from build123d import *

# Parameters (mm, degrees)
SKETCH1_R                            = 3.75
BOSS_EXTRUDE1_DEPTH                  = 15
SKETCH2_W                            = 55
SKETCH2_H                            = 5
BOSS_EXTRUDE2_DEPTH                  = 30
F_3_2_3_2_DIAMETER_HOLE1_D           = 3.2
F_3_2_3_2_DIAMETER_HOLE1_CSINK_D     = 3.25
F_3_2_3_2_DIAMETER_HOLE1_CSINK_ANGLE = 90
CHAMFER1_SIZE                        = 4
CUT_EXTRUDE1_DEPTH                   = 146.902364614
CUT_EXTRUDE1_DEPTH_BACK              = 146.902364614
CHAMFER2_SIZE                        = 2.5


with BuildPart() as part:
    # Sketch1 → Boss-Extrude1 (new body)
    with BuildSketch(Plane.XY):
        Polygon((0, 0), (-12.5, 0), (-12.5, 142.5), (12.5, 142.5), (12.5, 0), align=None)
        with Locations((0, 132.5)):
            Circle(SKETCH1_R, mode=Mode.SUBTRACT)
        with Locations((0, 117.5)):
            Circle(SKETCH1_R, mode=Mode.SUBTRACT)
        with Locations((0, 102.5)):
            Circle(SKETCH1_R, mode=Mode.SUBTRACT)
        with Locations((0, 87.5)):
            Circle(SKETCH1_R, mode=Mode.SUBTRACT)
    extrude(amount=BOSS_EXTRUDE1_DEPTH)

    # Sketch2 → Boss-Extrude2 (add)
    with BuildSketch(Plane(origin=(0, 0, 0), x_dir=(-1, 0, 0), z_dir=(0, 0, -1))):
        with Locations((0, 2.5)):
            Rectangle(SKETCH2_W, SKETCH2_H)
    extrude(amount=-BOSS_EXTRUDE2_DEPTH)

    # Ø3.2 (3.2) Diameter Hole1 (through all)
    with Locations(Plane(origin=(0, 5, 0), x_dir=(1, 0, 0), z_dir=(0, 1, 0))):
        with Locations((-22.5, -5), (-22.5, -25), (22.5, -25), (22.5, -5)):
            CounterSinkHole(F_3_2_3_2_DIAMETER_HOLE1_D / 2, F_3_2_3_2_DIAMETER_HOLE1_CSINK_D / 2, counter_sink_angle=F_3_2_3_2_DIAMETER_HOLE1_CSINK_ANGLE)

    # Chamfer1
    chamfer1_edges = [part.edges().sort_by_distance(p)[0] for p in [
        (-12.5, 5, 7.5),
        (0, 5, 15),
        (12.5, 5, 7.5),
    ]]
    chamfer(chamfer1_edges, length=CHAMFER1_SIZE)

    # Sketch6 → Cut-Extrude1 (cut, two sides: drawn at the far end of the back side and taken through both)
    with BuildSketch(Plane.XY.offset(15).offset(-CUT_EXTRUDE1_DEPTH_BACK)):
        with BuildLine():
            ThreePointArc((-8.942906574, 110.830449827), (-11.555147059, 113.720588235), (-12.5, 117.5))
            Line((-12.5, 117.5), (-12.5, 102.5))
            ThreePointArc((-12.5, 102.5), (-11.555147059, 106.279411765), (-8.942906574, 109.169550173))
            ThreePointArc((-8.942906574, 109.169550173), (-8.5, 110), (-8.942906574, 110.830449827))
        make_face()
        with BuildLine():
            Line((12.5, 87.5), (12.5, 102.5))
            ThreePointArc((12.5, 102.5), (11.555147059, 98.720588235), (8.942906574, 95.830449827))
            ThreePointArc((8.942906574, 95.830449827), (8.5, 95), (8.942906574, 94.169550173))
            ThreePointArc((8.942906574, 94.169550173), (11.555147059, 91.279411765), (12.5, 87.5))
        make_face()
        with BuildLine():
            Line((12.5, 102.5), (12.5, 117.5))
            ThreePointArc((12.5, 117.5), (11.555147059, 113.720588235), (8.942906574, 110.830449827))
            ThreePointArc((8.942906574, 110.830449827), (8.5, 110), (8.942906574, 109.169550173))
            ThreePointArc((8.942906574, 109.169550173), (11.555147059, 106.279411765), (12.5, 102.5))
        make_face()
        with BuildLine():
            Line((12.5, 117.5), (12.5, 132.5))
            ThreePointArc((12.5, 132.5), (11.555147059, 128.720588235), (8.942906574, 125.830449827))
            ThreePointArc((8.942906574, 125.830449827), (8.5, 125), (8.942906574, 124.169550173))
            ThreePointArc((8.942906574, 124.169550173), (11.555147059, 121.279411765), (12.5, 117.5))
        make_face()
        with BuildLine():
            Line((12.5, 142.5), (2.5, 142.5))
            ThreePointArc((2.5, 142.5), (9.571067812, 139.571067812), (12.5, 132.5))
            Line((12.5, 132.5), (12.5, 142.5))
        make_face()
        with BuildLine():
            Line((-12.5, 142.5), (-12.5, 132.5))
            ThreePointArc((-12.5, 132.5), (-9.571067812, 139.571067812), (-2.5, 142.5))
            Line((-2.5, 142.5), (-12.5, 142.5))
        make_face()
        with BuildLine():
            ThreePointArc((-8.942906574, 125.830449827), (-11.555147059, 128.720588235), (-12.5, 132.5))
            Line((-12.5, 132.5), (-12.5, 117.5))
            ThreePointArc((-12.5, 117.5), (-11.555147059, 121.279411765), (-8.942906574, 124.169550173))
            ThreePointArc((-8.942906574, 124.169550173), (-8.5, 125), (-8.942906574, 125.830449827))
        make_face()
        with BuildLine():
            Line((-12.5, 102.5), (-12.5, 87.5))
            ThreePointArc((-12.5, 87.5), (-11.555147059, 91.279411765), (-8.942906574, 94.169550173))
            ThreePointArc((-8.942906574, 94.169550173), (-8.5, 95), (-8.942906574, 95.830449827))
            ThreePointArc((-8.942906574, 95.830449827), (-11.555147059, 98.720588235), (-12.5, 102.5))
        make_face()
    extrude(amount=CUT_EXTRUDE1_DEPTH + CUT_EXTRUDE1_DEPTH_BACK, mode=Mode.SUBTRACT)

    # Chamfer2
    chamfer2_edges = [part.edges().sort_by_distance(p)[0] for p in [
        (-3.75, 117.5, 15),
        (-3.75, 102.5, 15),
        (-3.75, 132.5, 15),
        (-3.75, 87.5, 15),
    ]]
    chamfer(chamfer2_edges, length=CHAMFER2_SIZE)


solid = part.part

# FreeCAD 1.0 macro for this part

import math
import FreeCAD as App
import Part
import Sketcher

V = App.Vector
Q = App.Units.Quantity


def edges_at(feature, points):
    """Names of the edges that pass closest to the given points."""
    edges = feature.Shape.Edges
    near = lambda p: min(range(len(edges)), key=lambda i: edges[i].distToShape(Part.Vertex(*p))[0])
    return sorted({f"Edge{near(p) + 1}" for p in points})


def add_polygon(sketch, points):
    """Adds a closed chain of lines whose ends are joined by coincident constraints."""
    first, n = sketch.GeometryCount, len(points)
    for a, b in zip(points, points[1:] + points[:1]):
        sketch.addGeometry(Part.LineSegment(App.Vector(*a, 0), App.Vector(*b, 0)), False)
    for i in range(n):
        sketch.addConstraint(Sketcher.Constraint("Coincident", first + i, 2, first + (i + 1) % n, 1))

doc = App.newDocument("Part")
body = doc.addObject("PartDesign::Body", "Body")

# Sketch on XY plane
sketch1 = body.newObject("Sketcher::SketchObject", "Sketch")
sketch1.AttachmentSupport = (doc.getObject("XY_Plane"), [""])
sketch1.MapMode = "FlatFace"
add_polygon(sketch1, [(-12.5, 0), (12.5, 0), (12.5, 142.5), (-12.5, 142.5)])  # lines 0-3
sketch1.addGeometry(Part.Circle(V(0, 87.5, 0), V(0, 0, 1), 3.8), False)  # 4
sketch1.addGeometry(Part.Circle(V(0, 102.5, 0), V(0, 0, 1), 3.8), False)  # 5
sketch1.addGeometry(Part.Circle(V(0, 117.5, 0), V(0, 0, 1), 3.8), False)  # 6
sketch1.addGeometry(Part.Circle(V(0, 132.5, 0), V(0, 0, 1), 3.8), False)  # 7
sketch1.addConstraint([
    Sketcher.Constraint("Horizontal", 0),
    Sketcher.Constraint("Vertical", 1),
    Sketcher.Constraint("Horizontal", 2),
    Sketcher.Constraint("Vertical", 3),
    Sketcher.Constraint("Equal", 4, 5),
    Sketcher.Constraint("Equal", 5, 6),
    Sketcher.Constraint("Equal", 6, 7),
    Sketcher.Constraint("Symmetric", 0, 2, 3, 2, -1, 1),
    Sketcher.Constraint("PointOnObject", 4, 3, -2),
    Sketcher.Constraint("PointOnObject", 5, 3, -2),
    Sketcher.Constraint("PointOnObject", 6, 3, -2),
    Sketcher.Constraint("PointOnObject", 7, 3, -2),
    Sketcher.Constraint("Diameter", 4, Q("7.5 mm")),
    Sketcher.Constraint("DistanceX", 0, 1, 0, 2, Q("25 mm")),
    Sketcher.Constraint("DistanceY", 1, 1, 1, 2, Q("142.5 mm")),
    Sketcher.Constraint("DistanceY", 4, 3, 5, 3, Q("15 mm")),
    Sketcher.Constraint("DistanceY", 5, 3, 6, 3, Q("15 mm")),
    Sketcher.Constraint("DistanceY", 6, 3, 7, 3, Q("15 mm")),
    Sketcher.Constraint("DistanceY", 7, 3, 1, 2, Q("10 mm")),
])
pad1 = body.newObject("PartDesign::Pad", "Pad")
pad1.Profile = sketch1
pad1.Length = 15

# Sketch on XY plane
sketch2 = body.newObject("Sketcher::SketchObject", "Sketch001")
sketch2.AttachmentSupport = (doc.getObject("XY_Plane"), [""])
sketch2.MapMode = "FlatFace"
add_polygon(sketch2, [(28, 5), (28, 0), (-28, 0), (-28, 5)])  # lines 0-3
sketch2.addConstraint([
    Sketcher.Constraint("Vertical", 0),
    Sketcher.Constraint("Horizontal", 1),
    Sketcher.Constraint("Vertical", 2),
    Sketcher.Constraint("Horizontal", 3),
    Sketcher.Constraint("Symmetric", 0, 2, 1, 2, -1, 1),
    Sketcher.Constraint("DistanceX", 1, 2, 1, 1, Q("55 mm")),
    Sketcher.Constraint("DistanceY", 0, 2, 0, 1, Q("5 mm")),
])
pad2 = body.newObject("PartDesign::Pad", "Pad001")
pad2.Profile = sketch2
pad2.Length = 30

# Sketch on XZ plane
sketch3 = body.newObject("Sketcher::SketchObject", "Sketch002")
sketch3.AttachmentSupport = (doc.getObject("XZ_Plane"), [""])
sketch3.MapMode = "FlatFace"
sketch3.AttachmentOffset = App.Placement(V(0, 0, -5), App.Rotation())
sketch3.addGeometry([
    Part.Circle(V(-22.5, 5, 0), V(0, 0, 1), 1.6),
    Part.Circle(V(-22.5, 25, 0), V(0, 0, 1), 1.6),
    Part.Circle(V(22.5, 25, 0), V(0, 0, 1), 1.6),
    Part.Circle(V(22.5, 5, 0), V(0, 0, 1), 1.6),
], False)
sketch3.addConstraint([
    Sketcher.Constraint("Equal", 0, 1),
    Sketcher.Constraint("Equal", 1, 2),
    Sketcher.Constraint("Equal", 2, 3),
    Sketcher.Constraint("Symmetric", 1, 3, 2, 3, -2),
    Sketcher.Constraint("Symmetric", 0, 3, 3, 3, -2),
    Sketcher.Constraint("Vertical", 0, 3, 1, 3),
    Sketcher.Constraint("Diameter", 0, Q("3.2 mm")),
    Sketcher.Constraint("DistanceY", -1, 1, 0, 3, Q("5 mm")),
    Sketcher.Constraint("DistanceY", -1, 1, 1, 3, Q("25 mm")),
    Sketcher.Constraint("DistanceX", 1, 3, 2, 3, Q("45 mm")),
])
doc.recompute()
hole = body.newObject("PartDesign::Hole", "Hole")
hole.Profile = sketch3
hole.ThreadType = "None"
hole.Diameter = 3.2
hole.DepthType = "ThroughAll"
hole.HoleCutType = "Countersink"
hole.HoleCutDiameter = 3.25
hole.HoleCutCountersinkAngle = 90
hole.Reversed = True
doc.recompute()

chamfer = body.newObject("PartDesign::Chamfer", "Chamfer")
chamfer.Base = (hole, edges_at(hole, [(-12.5, 5, 7.5), (0, 5, 15), (12.5, 5, 7.5)]))
chamfer.Size = 4

# Sketch on XY plane
sketch4 = body.newObject("Sketcher::SketchObject", "Sketch003")
sketch4.AttachmentSupport = (doc.getObject("XY_Plane"), [""])
sketch4.MapMode = "FlatFace"
sketch4.AttachmentOffset = App.Placement(V(0, 0, 15), App.Rotation())
sketch4.addGeometry([
    Part.ArcOfCircle(Part.Circle(V(-4.5, 117.5, 0), V(0, 0, 1), 8), math.radians(180), math.radians(236)),  # 0
    Part.LineSegment(V(-12.5, 117.5, 0), V(-12.5, 102.5, 0)),  # 1
    Part.ArcOfCircle(Part.Circle(V(-4.5, 102.5, 0), V(0, 0, 1), 8), math.radians(124), math.radians(180)),  # 2
    Part.ArcOfCircle(Part.Circle(V(-9.5, 110, 0), V(0, 0, 1), 1), math.radians(-56), math.radians(56)),  # 3
    Part.LineSegment(V(12.5, 87.5, 0), V(12.5, 102.5, 0)),  # 4
    Part.ArcOfCircle(Part.Circle(V(4.5, 102.5, 0), V(0, 0, 1), 8), math.radians(-56), math.radians(0)),  # 5
    Part.ArcOfCircle(Part.Circle(V(9.5, 95, 0), V(0, 0, 1), 1), math.radians(124), math.radians(236)),  # 6
    Part.ArcOfCircle(Part.Circle(V(4.5, 87.5, 0), V(0, 0, 1), 8), math.radians(0), math.radians(56)),  # 7
    Part.LineSegment(V(12.5, 102.5, 0), V(12.5, 117.5, 0)),  # 8
    Part.ArcOfCircle(Part.Circle(V(4.5, 117.5, 0), V(0, 0, 1), 8), math.radians(-56), math.radians(0)),  # 9
    Part.ArcOfCircle(Part.Circle(V(9.5, 110, 0), V(0, 0, 1), 1), math.radians(124), math.radians(236)),  # 10
    Part.ArcOfCircle(Part.Circle(V(4.5, 102.5, 0), V(0, 0, 1), 8), math.radians(0), math.radians(56)),  # 11
    Part.LineSegment(V(12.5, 117.5, 0), V(12.5, 132.5, 0)),  # 12
    Part.ArcOfCircle(Part.Circle(V(4.5, 132.5, 0), V(0, 0, 1), 8), math.radians(-56), math.radians(0)),  # 13
    Part.ArcOfCircle(Part.Circle(V(9.5, 125, 0), V(0, 0, 1), 1), math.radians(124), math.radians(236)),  # 14
    Part.ArcOfCircle(Part.Circle(V(4.5, 117.5, 0), V(0, 0, 1), 8), math.radians(0), math.radians(56)),  # 15
    Part.LineSegment(V(12.5, 142.5, 0), V(2.5, 142.5, 0)),  # 16
    Part.ArcOfCircle(Part.Circle(V(2.5, 132.5, 0), V(0, 0, 1), 10), math.radians(0), math.radians(90)),  # 17
    Part.LineSegment(V(12.5, 132.5, 0), V(12.5, 142.5, 0)),  # 18
    Part.LineSegment(V(-12.5, 142.5, 0), V(-12.5, 132.5, 0)),  # 19
    Part.ArcOfCircle(Part.Circle(V(-2.5, 132.5, 0), V(0, 0, 1), 10), math.radians(90), math.radians(180)),  # 20
    Part.LineSegment(V(-2.5, 142.5, 0), V(-12.5, 142.5, 0)),  # 21
    Part.ArcOfCircle(Part.Circle(V(-4.5, 132.5, 0), V(0, 0, 1), 8), math.radians(180), math.radians(236)),  # 22
    Part.LineSegment(V(-12.5, 132.5, 0), V(-12.5, 117.5, 0)),  # 23
    Part.ArcOfCircle(Part.Circle(V(-4.5, 117.5, 0), V(0, 0, 1), 8), math.radians(124), math.radians(180)),  # 24
    Part.ArcOfCircle(Part.Circle(V(-9.5, 125, 0), V(0, 0, 1), 1), math.radians(-56), math.radians(56)),  # 25
    Part.LineSegment(V(-12.5, 102.5, 0), V(-12.5, 87.5, 0)),  # 26
    Part.ArcOfCircle(Part.Circle(V(-4.5, 87.5, 0), V(0, 0, 1), 8), math.radians(124), math.radians(180)),  # 27
    Part.ArcOfCircle(Part.Circle(V(-9.5, 95, 0), V(0, 0, 1), 1), math.radians(-56), math.radians(56)),  # 28
    Part.ArcOfCircle(Part.Circle(V(-4.5, 102.5, 0), V(0, 0, 1), 8), math.radians(180), math.radians(236)),  # 29
], False)
sketch4.addConstraint([
    Sketcher.Constraint("Tangent", 0, 1, 1, 1),
    Sketcher.Constraint("Tangent", 1, 2, 2, 2),
    Sketcher.Constraint("Tangent", 2, 1, 3, 1),
    Sketcher.Constraint("Tangent", 3, 2, 0, 2),
    Sketcher.Constraint("Tangent", 4, 2, 5, 2),
    Sketcher.Constraint("Tangent", 5, 1, 6, 1),
    Sketcher.Constraint("Tangent", 6, 2, 7, 2),
    Sketcher.Constraint("Tangent", 7, 1, 4, 1),
    Sketcher.Constraint("Tangent", 8, 2, 9, 2),
    Sketcher.Constraint("Tangent", 9, 1, 10, 1),
    Sketcher.Constraint("Tangent", 10, 2, 11, 2),
    Sketcher.Constraint("Tangent", 11, 1, 8, 1),
    Sketcher.Constraint("Tangent", 12, 2, 13, 2),
    Sketcher.Constraint("Tangent", 13, 1, 14, 1),
    Sketcher.Constraint("Tangent", 14, 2, 15, 2),
    Sketcher.Constraint("Tangent", 15, 1, 12, 1),
    Sketcher.Constraint("Tangent", 16, 2, 17, 2),
    Sketcher.Constraint("Tangent", 17, 1, 18, 1),
    Sketcher.Constraint("Coincident", 18, 2, 16, 1),
    Sketcher.Constraint("Tangent", 19, 2, 20, 2),
    Sketcher.Constraint("Tangent", 20, 1, 21, 1),
    Sketcher.Constraint("Coincident", 21, 2, 19, 1),
    Sketcher.Constraint("Tangent", 22, 1, 23, 1),
    Sketcher.Constraint("Tangent", 23, 2, 24, 2),
    Sketcher.Constraint("Tangent", 24, 1, 25, 1),
    Sketcher.Constraint("Tangent", 25, 2, 22, 2),
    Sketcher.Constraint("Tangent", 26, 2, 27, 2),
    Sketcher.Constraint("Tangent", 27, 1, 28, 1),
    Sketcher.Constraint("Tangent", 28, 2, 29, 2),
    Sketcher.Constraint("Tangent", 29, 1, 26, 1),
    Sketcher.Constraint("Vertical", 1),
    Sketcher.Constraint("Vertical", 4),
    Sketcher.Constraint("Vertical", 8),
    Sketcher.Constraint("Vertical", 12),
    Sketcher.Constraint("Horizontal", 16),
    Sketcher.Constraint("Vertical", 18),
    Sketcher.Constraint("Vertical", 19),
    Sketcher.Constraint("Horizontal", 21),
    Sketcher.Constraint("Vertical", 23),
    Sketcher.Constraint("Vertical", 26),
    Sketcher.Constraint("Coincident", 11, 3, 5, 3),
    Sketcher.Constraint("Coincident", 15, 3, 9, 3),
    Sketcher.Constraint("Coincident", 24, 3, 0, 3),
    Sketcher.Constraint("Coincident", 29, 3, 2, 3),
    Sketcher.Constraint("Coincident", 17, 1, 12, 2),
    Sketcher.Constraint("Coincident", 22, 1, 19, 2),
    Sketcher.Constraint("Equal", 0, 2),
    Sketcher.Constraint("Equal", 2, 5),
    Sketcher.Constraint("Equal", 3, 6),
    Sketcher.Constraint("Equal", 5, 7),
    Sketcher.Constraint("Equal", 7, 9),
    Sketcher.Constraint("Equal", 6, 10),
    Sketcher.Constraint("Equal", 9, 11),
    Sketcher.Constraint("Equal", 11, 13),
    Sketcher.Constraint("Equal", 10, 14),
    Sketcher.Constraint("Equal", 13, 15),
    Sketcher.Constraint("Equal", 17, 20),
    Sketcher.Constraint("Equal", 15, 22),
    Sketcher.Constraint("Equal", 22, 24),
    Sketcher.Constraint("Equal", 14, 25),
    Sketcher.Constraint("Equal", 24, 27),
    Sketcher.Constraint("Equal", 25, 28),
    Sketcher.Constraint("Equal", 27, 29),
    Sketcher.Constraint("Symmetric", 2, 3, 5, 3, -2),
    Sketcher.Constraint("Symmetric", 14, 3, 25, 3, -2),
    Sketcher.Constraint("Horizontal", 7, 3, 27, 3),
    Sketcher.Constraint("Vertical", 6, 3, 10, 3),
    Sketcher.Constraint("Vertical", 10, 3, 14, 3),
    Sketcher.Constraint("Radius", 3, Q("1 mm")),
    Sketcher.Constraint("Radius", 17, Q("10 mm")),
    Sketcher.Constraint("DistanceY", 1, 2, 1, 1, Q("15 mm")),
    Sketcher.Constraint("DistanceY", -1, 1, 3, 3, Q("110 mm")),
    Sketcher.Constraint("DistanceX", 3, 3, 6, 3, Q("19 mm")),
    Sketcher.Constraint("DistanceX", 17, 3, 14, 3, Q("7 mm")),
])
pocket1 = body.newObject("PartDesign::Pocket", "Pocket")
pocket1.Profile = sketch4
pocket1.Type = "ThroughAll"
pocket1.Midplane = True
doc.recompute()

chamfer2 = body.newObject("PartDesign::Chamfer", "Chamfer001")
chamfer2.Base = (pocket1, edges_at(pocket1, [
    (-3.75, 117.5, 15),
    (-3.75, 102.5, 15),
    (-3.75, 132.5, 15),
    (-3.75, 87.5, 15),
]))
chamfer2.Size = 2.5

doc.recompute()
